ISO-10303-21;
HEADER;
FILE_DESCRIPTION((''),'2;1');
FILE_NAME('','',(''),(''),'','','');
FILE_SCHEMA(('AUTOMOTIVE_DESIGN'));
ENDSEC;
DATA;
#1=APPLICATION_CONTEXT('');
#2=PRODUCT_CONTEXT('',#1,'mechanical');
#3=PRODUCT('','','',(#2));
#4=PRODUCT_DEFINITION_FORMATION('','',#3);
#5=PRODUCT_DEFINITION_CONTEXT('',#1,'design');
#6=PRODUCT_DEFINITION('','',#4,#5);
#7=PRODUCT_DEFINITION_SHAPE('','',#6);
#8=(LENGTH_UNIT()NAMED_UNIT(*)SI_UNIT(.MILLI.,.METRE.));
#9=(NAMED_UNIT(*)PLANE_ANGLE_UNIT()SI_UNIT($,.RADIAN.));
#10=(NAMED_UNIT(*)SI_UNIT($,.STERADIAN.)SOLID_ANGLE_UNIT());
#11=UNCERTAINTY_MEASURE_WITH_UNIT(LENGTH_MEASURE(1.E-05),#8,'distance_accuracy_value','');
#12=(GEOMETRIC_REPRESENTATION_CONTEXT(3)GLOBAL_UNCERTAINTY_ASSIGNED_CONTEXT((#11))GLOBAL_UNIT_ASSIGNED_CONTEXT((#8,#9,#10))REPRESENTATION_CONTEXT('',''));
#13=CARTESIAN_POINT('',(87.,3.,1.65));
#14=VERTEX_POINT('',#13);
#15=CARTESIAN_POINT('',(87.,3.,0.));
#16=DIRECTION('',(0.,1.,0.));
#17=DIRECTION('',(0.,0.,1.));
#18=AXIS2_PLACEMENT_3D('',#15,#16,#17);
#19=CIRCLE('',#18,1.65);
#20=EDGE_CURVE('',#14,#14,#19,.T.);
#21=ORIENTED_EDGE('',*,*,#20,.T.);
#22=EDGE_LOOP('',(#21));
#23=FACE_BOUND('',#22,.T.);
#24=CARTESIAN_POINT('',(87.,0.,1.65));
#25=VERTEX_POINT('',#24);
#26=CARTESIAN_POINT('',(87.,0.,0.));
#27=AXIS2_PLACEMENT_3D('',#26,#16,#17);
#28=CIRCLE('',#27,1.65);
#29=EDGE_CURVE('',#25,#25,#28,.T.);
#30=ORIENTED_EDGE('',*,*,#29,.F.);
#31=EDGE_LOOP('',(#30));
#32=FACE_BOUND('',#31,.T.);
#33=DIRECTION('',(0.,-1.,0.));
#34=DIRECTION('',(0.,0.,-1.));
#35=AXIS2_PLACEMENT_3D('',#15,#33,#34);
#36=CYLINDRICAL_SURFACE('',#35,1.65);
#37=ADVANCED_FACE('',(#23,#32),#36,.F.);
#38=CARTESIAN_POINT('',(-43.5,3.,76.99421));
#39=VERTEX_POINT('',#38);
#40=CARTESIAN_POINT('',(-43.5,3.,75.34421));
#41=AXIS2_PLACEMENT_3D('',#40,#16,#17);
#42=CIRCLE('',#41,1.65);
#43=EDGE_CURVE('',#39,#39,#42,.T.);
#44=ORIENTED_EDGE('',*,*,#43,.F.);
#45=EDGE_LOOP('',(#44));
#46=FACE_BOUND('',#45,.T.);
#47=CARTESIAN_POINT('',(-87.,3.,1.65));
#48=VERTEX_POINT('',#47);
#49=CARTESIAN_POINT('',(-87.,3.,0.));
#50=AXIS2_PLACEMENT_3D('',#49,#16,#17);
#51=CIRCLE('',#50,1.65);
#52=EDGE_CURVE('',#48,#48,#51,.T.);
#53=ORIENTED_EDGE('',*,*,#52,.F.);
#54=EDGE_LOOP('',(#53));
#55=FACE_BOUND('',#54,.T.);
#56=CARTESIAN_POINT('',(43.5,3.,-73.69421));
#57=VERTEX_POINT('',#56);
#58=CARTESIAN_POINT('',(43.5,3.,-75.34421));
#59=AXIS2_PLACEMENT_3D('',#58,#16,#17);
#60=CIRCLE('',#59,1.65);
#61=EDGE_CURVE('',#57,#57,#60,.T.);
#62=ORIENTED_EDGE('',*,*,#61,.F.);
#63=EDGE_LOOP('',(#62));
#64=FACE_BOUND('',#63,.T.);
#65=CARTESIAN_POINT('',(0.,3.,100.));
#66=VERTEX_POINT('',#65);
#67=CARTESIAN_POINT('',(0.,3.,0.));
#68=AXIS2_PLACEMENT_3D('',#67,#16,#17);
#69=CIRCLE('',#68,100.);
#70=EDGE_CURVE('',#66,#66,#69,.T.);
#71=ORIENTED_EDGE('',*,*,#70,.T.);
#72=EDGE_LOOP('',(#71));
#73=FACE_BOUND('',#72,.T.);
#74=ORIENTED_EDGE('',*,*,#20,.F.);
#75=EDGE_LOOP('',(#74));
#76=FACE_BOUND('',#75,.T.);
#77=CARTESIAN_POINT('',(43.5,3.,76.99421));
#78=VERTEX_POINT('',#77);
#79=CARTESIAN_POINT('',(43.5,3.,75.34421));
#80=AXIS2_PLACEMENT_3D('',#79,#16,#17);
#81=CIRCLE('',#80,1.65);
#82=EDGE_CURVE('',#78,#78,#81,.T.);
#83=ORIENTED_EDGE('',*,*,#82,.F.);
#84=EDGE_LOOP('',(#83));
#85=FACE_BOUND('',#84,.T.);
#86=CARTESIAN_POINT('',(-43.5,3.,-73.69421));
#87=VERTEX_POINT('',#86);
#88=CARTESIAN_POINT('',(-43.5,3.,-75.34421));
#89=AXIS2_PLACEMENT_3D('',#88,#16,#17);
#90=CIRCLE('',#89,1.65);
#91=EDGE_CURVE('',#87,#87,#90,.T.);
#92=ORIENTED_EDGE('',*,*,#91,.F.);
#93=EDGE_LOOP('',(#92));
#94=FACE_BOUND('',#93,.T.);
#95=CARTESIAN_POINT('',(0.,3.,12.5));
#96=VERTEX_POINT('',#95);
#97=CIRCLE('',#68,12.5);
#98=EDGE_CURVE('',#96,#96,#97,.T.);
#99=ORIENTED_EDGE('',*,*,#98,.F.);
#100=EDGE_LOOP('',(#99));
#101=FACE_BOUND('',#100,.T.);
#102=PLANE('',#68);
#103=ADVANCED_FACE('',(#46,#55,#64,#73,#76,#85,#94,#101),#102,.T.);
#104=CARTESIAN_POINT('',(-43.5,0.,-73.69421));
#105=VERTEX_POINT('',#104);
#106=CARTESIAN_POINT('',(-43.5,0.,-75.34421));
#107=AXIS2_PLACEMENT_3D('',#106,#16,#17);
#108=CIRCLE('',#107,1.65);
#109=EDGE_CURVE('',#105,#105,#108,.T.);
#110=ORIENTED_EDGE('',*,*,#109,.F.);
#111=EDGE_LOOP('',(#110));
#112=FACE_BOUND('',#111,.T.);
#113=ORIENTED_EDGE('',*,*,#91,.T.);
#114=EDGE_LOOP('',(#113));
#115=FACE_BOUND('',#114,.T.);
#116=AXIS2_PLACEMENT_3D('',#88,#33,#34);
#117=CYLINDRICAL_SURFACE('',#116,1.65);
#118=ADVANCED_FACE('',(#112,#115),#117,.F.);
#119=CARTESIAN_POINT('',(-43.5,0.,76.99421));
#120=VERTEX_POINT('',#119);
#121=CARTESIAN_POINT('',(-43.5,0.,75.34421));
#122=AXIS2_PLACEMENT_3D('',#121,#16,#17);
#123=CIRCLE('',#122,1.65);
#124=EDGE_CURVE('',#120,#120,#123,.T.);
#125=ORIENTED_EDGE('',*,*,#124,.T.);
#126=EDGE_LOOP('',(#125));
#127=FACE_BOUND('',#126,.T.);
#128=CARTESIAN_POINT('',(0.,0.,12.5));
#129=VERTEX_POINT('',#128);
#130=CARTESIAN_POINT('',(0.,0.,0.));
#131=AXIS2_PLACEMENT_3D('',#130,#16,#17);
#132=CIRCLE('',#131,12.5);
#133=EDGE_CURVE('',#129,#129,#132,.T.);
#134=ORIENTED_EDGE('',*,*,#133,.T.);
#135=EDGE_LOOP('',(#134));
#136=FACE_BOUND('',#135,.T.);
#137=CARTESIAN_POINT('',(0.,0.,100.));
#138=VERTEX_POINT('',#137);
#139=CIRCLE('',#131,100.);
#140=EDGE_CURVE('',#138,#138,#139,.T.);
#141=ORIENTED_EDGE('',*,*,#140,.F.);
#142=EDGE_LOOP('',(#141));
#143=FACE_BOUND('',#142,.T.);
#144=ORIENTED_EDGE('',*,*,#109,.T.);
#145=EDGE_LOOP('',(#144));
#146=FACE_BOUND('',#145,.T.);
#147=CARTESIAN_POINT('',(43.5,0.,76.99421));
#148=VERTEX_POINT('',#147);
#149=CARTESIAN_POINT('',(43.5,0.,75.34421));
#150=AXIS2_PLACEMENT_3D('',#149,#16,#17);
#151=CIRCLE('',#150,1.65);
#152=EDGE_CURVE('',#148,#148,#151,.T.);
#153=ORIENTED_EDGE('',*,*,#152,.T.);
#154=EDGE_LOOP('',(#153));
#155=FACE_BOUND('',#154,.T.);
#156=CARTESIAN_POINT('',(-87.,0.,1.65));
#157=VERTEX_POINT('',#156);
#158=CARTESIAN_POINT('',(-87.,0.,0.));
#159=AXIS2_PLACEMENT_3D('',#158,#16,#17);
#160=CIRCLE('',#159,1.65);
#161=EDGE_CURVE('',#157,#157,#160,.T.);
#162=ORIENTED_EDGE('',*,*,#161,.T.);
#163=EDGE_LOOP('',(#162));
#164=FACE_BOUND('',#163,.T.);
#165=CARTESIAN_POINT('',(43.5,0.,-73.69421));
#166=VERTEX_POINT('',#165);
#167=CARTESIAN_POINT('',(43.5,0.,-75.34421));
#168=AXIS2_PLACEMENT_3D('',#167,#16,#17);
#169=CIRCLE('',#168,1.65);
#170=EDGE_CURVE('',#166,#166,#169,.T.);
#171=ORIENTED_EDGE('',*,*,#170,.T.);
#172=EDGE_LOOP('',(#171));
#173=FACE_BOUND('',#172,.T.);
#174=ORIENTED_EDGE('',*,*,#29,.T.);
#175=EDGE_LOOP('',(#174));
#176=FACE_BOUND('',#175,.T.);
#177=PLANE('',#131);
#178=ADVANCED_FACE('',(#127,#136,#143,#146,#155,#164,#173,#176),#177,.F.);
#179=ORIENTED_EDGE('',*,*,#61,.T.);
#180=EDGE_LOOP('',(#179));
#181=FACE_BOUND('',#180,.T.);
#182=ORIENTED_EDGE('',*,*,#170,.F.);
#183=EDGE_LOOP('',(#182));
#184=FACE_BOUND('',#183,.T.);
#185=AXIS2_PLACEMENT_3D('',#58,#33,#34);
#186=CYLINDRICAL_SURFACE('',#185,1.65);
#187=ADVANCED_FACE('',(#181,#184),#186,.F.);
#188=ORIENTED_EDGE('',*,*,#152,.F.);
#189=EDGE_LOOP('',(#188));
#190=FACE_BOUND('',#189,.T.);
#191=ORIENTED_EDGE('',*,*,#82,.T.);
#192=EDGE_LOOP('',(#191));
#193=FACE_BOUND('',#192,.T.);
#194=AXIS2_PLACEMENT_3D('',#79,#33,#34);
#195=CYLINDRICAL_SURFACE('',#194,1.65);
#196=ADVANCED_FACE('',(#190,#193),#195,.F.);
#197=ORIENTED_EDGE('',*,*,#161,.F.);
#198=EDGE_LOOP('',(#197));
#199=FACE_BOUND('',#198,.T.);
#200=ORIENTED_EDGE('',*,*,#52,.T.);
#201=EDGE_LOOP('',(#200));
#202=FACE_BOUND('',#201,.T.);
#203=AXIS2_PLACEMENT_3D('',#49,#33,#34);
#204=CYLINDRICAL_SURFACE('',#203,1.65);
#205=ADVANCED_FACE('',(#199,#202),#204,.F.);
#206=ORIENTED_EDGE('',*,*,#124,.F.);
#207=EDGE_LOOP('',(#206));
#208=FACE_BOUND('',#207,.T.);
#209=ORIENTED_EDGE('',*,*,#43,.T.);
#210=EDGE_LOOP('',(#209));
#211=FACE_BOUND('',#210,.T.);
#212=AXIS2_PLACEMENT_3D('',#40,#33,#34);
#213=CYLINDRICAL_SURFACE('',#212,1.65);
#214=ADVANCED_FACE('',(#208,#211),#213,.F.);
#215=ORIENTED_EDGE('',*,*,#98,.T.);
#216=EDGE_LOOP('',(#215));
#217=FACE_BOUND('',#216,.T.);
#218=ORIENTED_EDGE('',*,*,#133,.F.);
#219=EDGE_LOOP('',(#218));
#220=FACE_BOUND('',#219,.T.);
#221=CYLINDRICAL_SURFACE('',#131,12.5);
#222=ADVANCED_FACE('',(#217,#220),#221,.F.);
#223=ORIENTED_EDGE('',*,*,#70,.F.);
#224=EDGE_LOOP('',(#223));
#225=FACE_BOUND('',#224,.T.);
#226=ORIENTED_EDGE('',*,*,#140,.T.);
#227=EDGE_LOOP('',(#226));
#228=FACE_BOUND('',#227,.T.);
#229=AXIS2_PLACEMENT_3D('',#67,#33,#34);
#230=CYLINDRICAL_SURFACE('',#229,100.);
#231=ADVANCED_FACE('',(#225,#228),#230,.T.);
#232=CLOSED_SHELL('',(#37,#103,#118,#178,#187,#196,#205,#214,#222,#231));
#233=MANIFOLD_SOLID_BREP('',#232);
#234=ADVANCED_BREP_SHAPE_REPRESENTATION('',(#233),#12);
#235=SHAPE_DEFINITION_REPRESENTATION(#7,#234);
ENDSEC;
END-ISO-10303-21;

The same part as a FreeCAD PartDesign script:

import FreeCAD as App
import Part
import Sketcher

V = App.Vector
Q = App.Units.Quantity

doc = App.newDocument("Part")
params = doc.addObject("Spreadsheet::Sheet", "Params")
for row, (alias, value) in enumerate([
    ("sketch1_diameter", "200 mm"),
    ("sketch1_diameter2", "3.3 mm"),
    ("pad1_length", "3 mm"),
    ("sketch2_diameter", "25 mm"),
], start=1):
    params.set(f"A{row}", alias)
    params.set(f"B{row}", "=" + value)
    params.setAlias(f"B{row}", alias)

body = doc.addObject("PartDesign::Body", "Body")

# Sketch on XZ plane
sketch1 = doc.addObject("Sketcher::SketchObject", "Sketch")
body.addObject(sketch1)
sketch1.AttachmentSupport = (doc.XZ_Plane, [""])
sketch1.MapMode = "FlatFace"
sketch1.addGeometry([
    Part.Circle(V(0, 0, 0), V(0, 0, 1), 100),  # 0
    Part.Circle(V(-43.5, 75.34421, 0), V(0, 0, 1), 1.65),  # 1
    Part.Circle(V(43.5, 75.34421, 0), V(0, 0, 1), 1.65),  # 2
    Part.Circle(V(-87, 0, 0), V(0, 0, 1), 1.65),  # 3
    Part.Circle(V(-43.5, -75.34421, 0), V(0, 0, 1), 1.65),  # 4
    Part.Circle(V(87, 0, 0), V(0, 0, 1), 1.65),  # 5
    Part.Circle(V(43.5, -75.34421, 0), V(0, 0, 1), 1.65),  # 6
], False)
sketch1.addConstraint([
    Sketcher.Constraint("Coincident", 0, 3, -1, 1),
    Sketcher.Constraint("Equal", 1, 2),
    Sketcher.Constraint("Equal", 2, 3),
    Sketcher.Constraint("Equal", 3, 4),
    Sketcher.Constraint("Equal", 4, 5),
    Sketcher.Constraint("Equal", 5, 6),
    Sketcher.Constraint("Symmetric", 2, 3, 4, 3, -1, 1),
    Sketcher.Constraint("Symmetric", 3, 3, 5, 3, -1, 1),
    Sketcher.Constraint("Symmetric", 1, 3, 6, 3, -1, 1),
    Sketcher.Constraint("Symmetric", 1, 3, 2, 3, -2),
    Sketcher.Constraint("PointOnObject", 3, 3, -1),
    Sketcher.Constraint("Diameter", 0, Q("200 mm")),
    Sketcher.Constraint("Diameter", 1, Q("3.3 mm")),
    Sketcher.Constraint("DistanceX", 3, 3, -1, 1, Q("87 mm")),
    Sketcher.Constraint("DistanceX", 1, 3, 2, 3, Q("87 mm")),
    Sketcher.Constraint("DistanceY", -1, 1, 1, 3, Q("75.34421 mm")),
])
sketch1.setExpression("Constraints[11]", "Params.sketch1_diameter")
sketch1.setExpression("Constraints[12]", "Params.sketch1_diameter2")
pad1 = doc.addObject("PartDesign::Pad", "Pad")
body.addObject(pad1)
pad1.Profile = sketch1
pad1.setExpression("Length", "Params.pad1_length")
pad1.Reversed = True

# Sketch on XZ plane
sketch2 = doc.addObject("Sketcher::SketchObject", "Sketch001")
body.addObject(sketch2)
sketch2.AttachmentSupport = (doc.XZ_Plane, [""])
sketch2.MapMode = "FlatFace"
sketch2.AttachmentOffset = App.Placement(V(0, 0, -3), App.Rotation())
sketch2.addGeometry(Part.Circle(V(0, 0, 0), V(0, 0, 1), 12.5), False)
sketch2.addConstraint([
    Sketcher.Constraint("Coincident", 0, 3, -1, 1),
    Sketcher.Constraint("Diameter", 0, Q("25 mm")),
])
sketch2.setExpression("Constraints[1]", "Params.sketch2_diameter")
pocket1 = doc.addObject("PartDesign::Pocket", "Pocket")
body.addObject(pocket1)
pocket1.Profile = sketch2
pocket1.Type = "ThroughAll"
pocket1.Reversed = True

doc.recompute()
